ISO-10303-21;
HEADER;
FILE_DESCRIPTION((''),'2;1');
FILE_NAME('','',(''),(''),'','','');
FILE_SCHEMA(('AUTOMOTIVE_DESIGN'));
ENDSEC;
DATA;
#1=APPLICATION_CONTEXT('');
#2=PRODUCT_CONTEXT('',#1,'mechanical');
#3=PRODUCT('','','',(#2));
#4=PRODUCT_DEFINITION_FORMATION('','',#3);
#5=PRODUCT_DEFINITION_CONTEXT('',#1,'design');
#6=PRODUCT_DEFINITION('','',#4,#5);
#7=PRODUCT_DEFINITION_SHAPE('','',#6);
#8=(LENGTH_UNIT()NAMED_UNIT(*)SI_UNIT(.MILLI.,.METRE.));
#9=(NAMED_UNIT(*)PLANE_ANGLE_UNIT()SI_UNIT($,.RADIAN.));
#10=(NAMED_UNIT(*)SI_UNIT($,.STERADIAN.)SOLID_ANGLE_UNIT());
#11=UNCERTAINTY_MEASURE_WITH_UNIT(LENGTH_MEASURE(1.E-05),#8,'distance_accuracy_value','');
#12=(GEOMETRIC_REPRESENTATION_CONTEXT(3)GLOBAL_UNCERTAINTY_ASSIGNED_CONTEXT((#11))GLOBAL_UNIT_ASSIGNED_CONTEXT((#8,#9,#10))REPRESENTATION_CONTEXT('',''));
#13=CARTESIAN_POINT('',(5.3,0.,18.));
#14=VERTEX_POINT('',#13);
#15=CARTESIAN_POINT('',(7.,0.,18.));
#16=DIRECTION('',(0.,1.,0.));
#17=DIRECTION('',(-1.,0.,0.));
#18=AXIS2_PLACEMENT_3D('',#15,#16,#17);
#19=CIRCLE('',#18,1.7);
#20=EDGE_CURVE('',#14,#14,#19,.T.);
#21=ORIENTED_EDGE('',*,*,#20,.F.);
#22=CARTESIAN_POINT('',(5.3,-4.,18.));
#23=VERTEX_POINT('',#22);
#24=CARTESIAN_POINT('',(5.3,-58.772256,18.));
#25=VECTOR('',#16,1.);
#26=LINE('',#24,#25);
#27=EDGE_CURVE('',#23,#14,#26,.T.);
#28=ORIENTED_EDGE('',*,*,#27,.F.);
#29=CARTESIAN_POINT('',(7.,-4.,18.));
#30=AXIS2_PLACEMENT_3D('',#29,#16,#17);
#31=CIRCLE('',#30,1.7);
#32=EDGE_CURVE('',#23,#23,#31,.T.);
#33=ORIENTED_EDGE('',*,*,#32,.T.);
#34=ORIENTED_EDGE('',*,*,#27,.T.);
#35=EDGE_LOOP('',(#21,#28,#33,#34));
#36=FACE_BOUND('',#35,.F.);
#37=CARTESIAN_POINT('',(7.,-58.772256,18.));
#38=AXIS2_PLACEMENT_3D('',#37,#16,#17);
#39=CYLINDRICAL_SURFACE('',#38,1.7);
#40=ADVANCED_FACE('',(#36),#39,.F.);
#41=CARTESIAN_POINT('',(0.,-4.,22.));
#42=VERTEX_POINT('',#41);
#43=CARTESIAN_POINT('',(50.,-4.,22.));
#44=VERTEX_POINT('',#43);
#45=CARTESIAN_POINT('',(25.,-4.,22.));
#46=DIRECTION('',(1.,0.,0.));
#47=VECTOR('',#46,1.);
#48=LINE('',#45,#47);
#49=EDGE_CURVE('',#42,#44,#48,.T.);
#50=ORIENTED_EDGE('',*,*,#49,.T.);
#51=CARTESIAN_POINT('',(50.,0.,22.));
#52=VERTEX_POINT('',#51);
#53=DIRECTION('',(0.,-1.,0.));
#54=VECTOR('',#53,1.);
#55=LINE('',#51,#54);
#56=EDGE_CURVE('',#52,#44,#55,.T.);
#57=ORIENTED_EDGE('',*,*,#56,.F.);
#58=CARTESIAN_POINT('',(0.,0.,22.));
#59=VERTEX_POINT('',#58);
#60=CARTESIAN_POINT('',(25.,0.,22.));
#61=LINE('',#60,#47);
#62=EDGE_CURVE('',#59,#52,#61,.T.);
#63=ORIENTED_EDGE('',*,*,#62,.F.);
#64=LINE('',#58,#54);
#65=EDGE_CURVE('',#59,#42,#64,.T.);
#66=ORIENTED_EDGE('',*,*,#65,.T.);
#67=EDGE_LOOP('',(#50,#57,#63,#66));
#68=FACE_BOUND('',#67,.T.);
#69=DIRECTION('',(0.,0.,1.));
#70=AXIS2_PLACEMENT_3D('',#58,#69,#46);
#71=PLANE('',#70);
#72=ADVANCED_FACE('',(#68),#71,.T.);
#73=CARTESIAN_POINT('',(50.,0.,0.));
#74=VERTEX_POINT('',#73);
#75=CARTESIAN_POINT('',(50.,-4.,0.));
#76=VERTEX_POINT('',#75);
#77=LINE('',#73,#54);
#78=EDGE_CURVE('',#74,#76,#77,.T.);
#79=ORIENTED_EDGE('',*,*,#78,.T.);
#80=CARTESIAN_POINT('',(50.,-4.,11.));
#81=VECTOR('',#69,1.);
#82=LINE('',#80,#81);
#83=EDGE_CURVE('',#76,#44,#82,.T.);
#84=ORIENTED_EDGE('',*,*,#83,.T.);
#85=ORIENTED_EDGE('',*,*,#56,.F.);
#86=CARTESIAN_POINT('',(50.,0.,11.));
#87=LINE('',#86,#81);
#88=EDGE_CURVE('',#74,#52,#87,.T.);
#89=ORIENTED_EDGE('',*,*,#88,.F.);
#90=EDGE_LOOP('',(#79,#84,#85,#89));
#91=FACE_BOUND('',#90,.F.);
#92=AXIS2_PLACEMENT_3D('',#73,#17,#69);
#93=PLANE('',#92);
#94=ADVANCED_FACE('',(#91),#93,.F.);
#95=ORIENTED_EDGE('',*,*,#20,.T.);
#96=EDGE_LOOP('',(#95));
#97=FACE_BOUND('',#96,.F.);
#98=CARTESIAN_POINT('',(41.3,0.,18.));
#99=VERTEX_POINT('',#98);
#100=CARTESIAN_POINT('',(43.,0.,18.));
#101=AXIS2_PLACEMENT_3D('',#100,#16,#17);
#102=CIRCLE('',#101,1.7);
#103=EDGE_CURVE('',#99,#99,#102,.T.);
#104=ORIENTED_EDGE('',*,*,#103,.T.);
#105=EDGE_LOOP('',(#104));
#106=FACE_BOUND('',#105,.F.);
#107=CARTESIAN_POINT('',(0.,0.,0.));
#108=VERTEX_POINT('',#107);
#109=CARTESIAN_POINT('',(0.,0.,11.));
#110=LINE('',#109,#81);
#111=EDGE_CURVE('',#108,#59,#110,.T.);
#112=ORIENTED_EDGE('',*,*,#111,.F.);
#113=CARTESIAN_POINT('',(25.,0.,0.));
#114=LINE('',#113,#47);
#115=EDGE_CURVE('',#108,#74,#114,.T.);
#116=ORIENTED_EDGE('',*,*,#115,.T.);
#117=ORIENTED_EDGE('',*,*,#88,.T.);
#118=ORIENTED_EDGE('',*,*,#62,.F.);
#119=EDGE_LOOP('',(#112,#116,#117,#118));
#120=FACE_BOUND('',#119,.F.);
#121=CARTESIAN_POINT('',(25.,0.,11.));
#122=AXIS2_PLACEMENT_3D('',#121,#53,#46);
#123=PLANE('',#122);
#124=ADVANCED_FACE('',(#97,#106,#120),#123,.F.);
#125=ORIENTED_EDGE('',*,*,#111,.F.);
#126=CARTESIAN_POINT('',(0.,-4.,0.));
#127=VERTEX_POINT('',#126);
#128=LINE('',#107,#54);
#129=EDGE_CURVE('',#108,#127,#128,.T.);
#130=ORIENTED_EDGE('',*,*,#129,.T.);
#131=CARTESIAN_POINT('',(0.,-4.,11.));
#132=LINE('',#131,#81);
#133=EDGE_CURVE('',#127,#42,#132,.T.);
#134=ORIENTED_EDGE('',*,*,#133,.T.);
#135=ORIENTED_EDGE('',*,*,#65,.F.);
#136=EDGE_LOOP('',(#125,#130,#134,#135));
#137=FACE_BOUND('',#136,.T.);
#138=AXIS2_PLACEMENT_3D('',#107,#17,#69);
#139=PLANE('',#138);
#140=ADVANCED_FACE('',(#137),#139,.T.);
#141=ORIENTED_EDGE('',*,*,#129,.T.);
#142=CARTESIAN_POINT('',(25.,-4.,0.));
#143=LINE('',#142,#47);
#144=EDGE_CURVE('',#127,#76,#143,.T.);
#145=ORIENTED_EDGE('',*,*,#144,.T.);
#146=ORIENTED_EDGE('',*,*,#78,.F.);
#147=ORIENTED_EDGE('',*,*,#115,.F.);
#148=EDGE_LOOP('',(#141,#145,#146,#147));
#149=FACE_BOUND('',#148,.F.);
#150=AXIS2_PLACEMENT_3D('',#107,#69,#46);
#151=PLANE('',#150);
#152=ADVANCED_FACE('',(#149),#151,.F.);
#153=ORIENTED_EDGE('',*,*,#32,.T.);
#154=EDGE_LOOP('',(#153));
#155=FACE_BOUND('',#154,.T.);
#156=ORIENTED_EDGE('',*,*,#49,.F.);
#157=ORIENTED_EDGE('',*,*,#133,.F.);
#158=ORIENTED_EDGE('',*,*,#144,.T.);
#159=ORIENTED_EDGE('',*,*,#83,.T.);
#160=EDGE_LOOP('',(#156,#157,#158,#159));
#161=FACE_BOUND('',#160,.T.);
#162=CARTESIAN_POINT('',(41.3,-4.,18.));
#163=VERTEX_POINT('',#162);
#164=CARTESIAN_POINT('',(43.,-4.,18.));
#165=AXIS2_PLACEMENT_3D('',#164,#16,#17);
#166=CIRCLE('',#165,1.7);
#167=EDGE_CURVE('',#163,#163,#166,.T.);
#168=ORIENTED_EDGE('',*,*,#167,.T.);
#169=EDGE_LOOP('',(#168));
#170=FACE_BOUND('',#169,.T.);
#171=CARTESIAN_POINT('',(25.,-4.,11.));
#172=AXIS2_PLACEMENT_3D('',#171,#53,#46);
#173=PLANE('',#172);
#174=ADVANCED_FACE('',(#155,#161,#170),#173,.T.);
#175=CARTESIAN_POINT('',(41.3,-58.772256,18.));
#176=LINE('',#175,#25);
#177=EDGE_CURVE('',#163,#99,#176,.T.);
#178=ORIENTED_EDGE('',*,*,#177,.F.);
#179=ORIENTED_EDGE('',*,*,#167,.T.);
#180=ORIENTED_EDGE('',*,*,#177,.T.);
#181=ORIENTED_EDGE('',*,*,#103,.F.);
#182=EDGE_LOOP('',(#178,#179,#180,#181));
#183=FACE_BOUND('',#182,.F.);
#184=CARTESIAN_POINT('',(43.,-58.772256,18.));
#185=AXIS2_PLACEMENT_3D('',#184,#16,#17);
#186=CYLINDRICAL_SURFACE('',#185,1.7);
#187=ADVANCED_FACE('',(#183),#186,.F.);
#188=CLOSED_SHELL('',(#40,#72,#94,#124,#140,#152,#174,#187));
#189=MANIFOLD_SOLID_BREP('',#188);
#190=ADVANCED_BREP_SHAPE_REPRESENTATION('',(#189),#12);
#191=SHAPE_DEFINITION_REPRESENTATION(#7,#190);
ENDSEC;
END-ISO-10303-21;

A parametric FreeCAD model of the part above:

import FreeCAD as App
import Part
import Sketcher

V = App.Vector
Q = App.Units.Quantity


def add_polygon(sketch, points):
    """Adds a closed chain of lines whose ends are joined by coincident constraints."""
    first, n = sketch.GeometryCount, len(points)
    for a, b in zip(points, points[1:] + points[:1]):
        sketch.addGeometry(Part.LineSegment(App.Vector(*a, 0), App.Vector(*b, 0)), False)
    for i in range(n):
        sketch.addConstraint(Sketcher.Constraint("Coincident", first + i, 2, first + (i + 1) % n, 1))

doc = App.newDocument("Part")
params = doc.addObject("Spreadsheet::Sheet", "Params")
for row, (alias, value) in enumerate([
    ("sketch1_width", "50 mm"),
    ("sketch1_height", "22 mm"),
    ("pad1_length", "4 mm"),
    ("sketch2_diameter", "3.4 mm"),
    ("hole_diameter", "3.4 mm"),
], start=1):
    params.set(f"A{row}", alias)
    params.set(f"B{row}", "=" + value)
    params.setAlias(f"B{row}", alias)

body = doc.addObject("PartDesign::Body", "Body")

sketch1 = body.newObject("Sketcher::SketchObject", "Sketch")
sketch1.AttachmentSupport = (doc.getObject("XZ_Plane"), [""])
sketch1.MapMode = "FlatFace"
add_polygon(sketch1, [(0, 22), (0, 0), (50, 0), (50, 22)])
sketch1.addConstraint([
    Sketcher.Constraint("Vertical", 0),
    Sketcher.Constraint("Horizontal", 1),
    Sketcher.Constraint("Vertical", 2),
    Sketcher.Constraint("Horizontal", 3),
    Sketcher.Constraint("Coincident", 0, 2, -1, 1),
    Sketcher.Constraint("DistanceX", 1, 1, 1, 2, Q("50 mm")),
    Sketcher.Constraint("DistanceY", 0, 2, 0, 1, Q("22 mm")),
])
sketch1.setExpression("Constraints[9]", "Params.sketch1_width")
sketch1.setExpression("Constraints[10]", "Params.sketch1_height")
pad1 = body.newObject("PartDesign::Pad", "Pad")
pad1.Profile = sketch1
pad1.setExpression("Length", "Params.pad1_length")

sketch2 = body.newObject("Sketcher::SketchObject", "Sketch001")
sketch2.AttachmentSupport = (doc.getObject("XZ_Plane"), [""])
sketch2.MapMode = "FlatFace"
sketch2.AttachmentOffset = App.Placement(V(0, 0, 4), App.Rotation())
sketch2.addGeometry([
    Part.Circle(V(7, 18, 0), V(0, 0, 1), 1.7),
    Part.Circle(V(43, 18, 0), V(0, 0, 1), 1.7),
], False)
sketch2.addConstraint([
    Sketcher.Constraint("Equal", 0, 1),
    Sketcher.Constraint("Horizontal", 0, 3, 1, 3),
    Sketcher.Constraint("Diameter", 0, Q("3.4 mm")),
    Sketcher.Constraint("DistanceX", -1, 1, 0, 3, Q("7 mm")),
    Sketcher.Constraint("DistanceY", -1, 1, 0, 3, Q("18 mm")),
    Sketcher.Constraint("DistanceX", -1, 1, 1, 3, Q("43 mm")),
])
sketch2.setExpression("Constraints[2]", "Params.sketch2_diameter")
doc.recompute()
hole = body.newObject("PartDesign::Hole", "Hole")
hole.Profile = sketch2
hole.ThreadType = "None"
hole.setExpression("Diameter", "Params.hole_diameter")
hole.DepthType = "ThroughAll"

doc.recompute()
